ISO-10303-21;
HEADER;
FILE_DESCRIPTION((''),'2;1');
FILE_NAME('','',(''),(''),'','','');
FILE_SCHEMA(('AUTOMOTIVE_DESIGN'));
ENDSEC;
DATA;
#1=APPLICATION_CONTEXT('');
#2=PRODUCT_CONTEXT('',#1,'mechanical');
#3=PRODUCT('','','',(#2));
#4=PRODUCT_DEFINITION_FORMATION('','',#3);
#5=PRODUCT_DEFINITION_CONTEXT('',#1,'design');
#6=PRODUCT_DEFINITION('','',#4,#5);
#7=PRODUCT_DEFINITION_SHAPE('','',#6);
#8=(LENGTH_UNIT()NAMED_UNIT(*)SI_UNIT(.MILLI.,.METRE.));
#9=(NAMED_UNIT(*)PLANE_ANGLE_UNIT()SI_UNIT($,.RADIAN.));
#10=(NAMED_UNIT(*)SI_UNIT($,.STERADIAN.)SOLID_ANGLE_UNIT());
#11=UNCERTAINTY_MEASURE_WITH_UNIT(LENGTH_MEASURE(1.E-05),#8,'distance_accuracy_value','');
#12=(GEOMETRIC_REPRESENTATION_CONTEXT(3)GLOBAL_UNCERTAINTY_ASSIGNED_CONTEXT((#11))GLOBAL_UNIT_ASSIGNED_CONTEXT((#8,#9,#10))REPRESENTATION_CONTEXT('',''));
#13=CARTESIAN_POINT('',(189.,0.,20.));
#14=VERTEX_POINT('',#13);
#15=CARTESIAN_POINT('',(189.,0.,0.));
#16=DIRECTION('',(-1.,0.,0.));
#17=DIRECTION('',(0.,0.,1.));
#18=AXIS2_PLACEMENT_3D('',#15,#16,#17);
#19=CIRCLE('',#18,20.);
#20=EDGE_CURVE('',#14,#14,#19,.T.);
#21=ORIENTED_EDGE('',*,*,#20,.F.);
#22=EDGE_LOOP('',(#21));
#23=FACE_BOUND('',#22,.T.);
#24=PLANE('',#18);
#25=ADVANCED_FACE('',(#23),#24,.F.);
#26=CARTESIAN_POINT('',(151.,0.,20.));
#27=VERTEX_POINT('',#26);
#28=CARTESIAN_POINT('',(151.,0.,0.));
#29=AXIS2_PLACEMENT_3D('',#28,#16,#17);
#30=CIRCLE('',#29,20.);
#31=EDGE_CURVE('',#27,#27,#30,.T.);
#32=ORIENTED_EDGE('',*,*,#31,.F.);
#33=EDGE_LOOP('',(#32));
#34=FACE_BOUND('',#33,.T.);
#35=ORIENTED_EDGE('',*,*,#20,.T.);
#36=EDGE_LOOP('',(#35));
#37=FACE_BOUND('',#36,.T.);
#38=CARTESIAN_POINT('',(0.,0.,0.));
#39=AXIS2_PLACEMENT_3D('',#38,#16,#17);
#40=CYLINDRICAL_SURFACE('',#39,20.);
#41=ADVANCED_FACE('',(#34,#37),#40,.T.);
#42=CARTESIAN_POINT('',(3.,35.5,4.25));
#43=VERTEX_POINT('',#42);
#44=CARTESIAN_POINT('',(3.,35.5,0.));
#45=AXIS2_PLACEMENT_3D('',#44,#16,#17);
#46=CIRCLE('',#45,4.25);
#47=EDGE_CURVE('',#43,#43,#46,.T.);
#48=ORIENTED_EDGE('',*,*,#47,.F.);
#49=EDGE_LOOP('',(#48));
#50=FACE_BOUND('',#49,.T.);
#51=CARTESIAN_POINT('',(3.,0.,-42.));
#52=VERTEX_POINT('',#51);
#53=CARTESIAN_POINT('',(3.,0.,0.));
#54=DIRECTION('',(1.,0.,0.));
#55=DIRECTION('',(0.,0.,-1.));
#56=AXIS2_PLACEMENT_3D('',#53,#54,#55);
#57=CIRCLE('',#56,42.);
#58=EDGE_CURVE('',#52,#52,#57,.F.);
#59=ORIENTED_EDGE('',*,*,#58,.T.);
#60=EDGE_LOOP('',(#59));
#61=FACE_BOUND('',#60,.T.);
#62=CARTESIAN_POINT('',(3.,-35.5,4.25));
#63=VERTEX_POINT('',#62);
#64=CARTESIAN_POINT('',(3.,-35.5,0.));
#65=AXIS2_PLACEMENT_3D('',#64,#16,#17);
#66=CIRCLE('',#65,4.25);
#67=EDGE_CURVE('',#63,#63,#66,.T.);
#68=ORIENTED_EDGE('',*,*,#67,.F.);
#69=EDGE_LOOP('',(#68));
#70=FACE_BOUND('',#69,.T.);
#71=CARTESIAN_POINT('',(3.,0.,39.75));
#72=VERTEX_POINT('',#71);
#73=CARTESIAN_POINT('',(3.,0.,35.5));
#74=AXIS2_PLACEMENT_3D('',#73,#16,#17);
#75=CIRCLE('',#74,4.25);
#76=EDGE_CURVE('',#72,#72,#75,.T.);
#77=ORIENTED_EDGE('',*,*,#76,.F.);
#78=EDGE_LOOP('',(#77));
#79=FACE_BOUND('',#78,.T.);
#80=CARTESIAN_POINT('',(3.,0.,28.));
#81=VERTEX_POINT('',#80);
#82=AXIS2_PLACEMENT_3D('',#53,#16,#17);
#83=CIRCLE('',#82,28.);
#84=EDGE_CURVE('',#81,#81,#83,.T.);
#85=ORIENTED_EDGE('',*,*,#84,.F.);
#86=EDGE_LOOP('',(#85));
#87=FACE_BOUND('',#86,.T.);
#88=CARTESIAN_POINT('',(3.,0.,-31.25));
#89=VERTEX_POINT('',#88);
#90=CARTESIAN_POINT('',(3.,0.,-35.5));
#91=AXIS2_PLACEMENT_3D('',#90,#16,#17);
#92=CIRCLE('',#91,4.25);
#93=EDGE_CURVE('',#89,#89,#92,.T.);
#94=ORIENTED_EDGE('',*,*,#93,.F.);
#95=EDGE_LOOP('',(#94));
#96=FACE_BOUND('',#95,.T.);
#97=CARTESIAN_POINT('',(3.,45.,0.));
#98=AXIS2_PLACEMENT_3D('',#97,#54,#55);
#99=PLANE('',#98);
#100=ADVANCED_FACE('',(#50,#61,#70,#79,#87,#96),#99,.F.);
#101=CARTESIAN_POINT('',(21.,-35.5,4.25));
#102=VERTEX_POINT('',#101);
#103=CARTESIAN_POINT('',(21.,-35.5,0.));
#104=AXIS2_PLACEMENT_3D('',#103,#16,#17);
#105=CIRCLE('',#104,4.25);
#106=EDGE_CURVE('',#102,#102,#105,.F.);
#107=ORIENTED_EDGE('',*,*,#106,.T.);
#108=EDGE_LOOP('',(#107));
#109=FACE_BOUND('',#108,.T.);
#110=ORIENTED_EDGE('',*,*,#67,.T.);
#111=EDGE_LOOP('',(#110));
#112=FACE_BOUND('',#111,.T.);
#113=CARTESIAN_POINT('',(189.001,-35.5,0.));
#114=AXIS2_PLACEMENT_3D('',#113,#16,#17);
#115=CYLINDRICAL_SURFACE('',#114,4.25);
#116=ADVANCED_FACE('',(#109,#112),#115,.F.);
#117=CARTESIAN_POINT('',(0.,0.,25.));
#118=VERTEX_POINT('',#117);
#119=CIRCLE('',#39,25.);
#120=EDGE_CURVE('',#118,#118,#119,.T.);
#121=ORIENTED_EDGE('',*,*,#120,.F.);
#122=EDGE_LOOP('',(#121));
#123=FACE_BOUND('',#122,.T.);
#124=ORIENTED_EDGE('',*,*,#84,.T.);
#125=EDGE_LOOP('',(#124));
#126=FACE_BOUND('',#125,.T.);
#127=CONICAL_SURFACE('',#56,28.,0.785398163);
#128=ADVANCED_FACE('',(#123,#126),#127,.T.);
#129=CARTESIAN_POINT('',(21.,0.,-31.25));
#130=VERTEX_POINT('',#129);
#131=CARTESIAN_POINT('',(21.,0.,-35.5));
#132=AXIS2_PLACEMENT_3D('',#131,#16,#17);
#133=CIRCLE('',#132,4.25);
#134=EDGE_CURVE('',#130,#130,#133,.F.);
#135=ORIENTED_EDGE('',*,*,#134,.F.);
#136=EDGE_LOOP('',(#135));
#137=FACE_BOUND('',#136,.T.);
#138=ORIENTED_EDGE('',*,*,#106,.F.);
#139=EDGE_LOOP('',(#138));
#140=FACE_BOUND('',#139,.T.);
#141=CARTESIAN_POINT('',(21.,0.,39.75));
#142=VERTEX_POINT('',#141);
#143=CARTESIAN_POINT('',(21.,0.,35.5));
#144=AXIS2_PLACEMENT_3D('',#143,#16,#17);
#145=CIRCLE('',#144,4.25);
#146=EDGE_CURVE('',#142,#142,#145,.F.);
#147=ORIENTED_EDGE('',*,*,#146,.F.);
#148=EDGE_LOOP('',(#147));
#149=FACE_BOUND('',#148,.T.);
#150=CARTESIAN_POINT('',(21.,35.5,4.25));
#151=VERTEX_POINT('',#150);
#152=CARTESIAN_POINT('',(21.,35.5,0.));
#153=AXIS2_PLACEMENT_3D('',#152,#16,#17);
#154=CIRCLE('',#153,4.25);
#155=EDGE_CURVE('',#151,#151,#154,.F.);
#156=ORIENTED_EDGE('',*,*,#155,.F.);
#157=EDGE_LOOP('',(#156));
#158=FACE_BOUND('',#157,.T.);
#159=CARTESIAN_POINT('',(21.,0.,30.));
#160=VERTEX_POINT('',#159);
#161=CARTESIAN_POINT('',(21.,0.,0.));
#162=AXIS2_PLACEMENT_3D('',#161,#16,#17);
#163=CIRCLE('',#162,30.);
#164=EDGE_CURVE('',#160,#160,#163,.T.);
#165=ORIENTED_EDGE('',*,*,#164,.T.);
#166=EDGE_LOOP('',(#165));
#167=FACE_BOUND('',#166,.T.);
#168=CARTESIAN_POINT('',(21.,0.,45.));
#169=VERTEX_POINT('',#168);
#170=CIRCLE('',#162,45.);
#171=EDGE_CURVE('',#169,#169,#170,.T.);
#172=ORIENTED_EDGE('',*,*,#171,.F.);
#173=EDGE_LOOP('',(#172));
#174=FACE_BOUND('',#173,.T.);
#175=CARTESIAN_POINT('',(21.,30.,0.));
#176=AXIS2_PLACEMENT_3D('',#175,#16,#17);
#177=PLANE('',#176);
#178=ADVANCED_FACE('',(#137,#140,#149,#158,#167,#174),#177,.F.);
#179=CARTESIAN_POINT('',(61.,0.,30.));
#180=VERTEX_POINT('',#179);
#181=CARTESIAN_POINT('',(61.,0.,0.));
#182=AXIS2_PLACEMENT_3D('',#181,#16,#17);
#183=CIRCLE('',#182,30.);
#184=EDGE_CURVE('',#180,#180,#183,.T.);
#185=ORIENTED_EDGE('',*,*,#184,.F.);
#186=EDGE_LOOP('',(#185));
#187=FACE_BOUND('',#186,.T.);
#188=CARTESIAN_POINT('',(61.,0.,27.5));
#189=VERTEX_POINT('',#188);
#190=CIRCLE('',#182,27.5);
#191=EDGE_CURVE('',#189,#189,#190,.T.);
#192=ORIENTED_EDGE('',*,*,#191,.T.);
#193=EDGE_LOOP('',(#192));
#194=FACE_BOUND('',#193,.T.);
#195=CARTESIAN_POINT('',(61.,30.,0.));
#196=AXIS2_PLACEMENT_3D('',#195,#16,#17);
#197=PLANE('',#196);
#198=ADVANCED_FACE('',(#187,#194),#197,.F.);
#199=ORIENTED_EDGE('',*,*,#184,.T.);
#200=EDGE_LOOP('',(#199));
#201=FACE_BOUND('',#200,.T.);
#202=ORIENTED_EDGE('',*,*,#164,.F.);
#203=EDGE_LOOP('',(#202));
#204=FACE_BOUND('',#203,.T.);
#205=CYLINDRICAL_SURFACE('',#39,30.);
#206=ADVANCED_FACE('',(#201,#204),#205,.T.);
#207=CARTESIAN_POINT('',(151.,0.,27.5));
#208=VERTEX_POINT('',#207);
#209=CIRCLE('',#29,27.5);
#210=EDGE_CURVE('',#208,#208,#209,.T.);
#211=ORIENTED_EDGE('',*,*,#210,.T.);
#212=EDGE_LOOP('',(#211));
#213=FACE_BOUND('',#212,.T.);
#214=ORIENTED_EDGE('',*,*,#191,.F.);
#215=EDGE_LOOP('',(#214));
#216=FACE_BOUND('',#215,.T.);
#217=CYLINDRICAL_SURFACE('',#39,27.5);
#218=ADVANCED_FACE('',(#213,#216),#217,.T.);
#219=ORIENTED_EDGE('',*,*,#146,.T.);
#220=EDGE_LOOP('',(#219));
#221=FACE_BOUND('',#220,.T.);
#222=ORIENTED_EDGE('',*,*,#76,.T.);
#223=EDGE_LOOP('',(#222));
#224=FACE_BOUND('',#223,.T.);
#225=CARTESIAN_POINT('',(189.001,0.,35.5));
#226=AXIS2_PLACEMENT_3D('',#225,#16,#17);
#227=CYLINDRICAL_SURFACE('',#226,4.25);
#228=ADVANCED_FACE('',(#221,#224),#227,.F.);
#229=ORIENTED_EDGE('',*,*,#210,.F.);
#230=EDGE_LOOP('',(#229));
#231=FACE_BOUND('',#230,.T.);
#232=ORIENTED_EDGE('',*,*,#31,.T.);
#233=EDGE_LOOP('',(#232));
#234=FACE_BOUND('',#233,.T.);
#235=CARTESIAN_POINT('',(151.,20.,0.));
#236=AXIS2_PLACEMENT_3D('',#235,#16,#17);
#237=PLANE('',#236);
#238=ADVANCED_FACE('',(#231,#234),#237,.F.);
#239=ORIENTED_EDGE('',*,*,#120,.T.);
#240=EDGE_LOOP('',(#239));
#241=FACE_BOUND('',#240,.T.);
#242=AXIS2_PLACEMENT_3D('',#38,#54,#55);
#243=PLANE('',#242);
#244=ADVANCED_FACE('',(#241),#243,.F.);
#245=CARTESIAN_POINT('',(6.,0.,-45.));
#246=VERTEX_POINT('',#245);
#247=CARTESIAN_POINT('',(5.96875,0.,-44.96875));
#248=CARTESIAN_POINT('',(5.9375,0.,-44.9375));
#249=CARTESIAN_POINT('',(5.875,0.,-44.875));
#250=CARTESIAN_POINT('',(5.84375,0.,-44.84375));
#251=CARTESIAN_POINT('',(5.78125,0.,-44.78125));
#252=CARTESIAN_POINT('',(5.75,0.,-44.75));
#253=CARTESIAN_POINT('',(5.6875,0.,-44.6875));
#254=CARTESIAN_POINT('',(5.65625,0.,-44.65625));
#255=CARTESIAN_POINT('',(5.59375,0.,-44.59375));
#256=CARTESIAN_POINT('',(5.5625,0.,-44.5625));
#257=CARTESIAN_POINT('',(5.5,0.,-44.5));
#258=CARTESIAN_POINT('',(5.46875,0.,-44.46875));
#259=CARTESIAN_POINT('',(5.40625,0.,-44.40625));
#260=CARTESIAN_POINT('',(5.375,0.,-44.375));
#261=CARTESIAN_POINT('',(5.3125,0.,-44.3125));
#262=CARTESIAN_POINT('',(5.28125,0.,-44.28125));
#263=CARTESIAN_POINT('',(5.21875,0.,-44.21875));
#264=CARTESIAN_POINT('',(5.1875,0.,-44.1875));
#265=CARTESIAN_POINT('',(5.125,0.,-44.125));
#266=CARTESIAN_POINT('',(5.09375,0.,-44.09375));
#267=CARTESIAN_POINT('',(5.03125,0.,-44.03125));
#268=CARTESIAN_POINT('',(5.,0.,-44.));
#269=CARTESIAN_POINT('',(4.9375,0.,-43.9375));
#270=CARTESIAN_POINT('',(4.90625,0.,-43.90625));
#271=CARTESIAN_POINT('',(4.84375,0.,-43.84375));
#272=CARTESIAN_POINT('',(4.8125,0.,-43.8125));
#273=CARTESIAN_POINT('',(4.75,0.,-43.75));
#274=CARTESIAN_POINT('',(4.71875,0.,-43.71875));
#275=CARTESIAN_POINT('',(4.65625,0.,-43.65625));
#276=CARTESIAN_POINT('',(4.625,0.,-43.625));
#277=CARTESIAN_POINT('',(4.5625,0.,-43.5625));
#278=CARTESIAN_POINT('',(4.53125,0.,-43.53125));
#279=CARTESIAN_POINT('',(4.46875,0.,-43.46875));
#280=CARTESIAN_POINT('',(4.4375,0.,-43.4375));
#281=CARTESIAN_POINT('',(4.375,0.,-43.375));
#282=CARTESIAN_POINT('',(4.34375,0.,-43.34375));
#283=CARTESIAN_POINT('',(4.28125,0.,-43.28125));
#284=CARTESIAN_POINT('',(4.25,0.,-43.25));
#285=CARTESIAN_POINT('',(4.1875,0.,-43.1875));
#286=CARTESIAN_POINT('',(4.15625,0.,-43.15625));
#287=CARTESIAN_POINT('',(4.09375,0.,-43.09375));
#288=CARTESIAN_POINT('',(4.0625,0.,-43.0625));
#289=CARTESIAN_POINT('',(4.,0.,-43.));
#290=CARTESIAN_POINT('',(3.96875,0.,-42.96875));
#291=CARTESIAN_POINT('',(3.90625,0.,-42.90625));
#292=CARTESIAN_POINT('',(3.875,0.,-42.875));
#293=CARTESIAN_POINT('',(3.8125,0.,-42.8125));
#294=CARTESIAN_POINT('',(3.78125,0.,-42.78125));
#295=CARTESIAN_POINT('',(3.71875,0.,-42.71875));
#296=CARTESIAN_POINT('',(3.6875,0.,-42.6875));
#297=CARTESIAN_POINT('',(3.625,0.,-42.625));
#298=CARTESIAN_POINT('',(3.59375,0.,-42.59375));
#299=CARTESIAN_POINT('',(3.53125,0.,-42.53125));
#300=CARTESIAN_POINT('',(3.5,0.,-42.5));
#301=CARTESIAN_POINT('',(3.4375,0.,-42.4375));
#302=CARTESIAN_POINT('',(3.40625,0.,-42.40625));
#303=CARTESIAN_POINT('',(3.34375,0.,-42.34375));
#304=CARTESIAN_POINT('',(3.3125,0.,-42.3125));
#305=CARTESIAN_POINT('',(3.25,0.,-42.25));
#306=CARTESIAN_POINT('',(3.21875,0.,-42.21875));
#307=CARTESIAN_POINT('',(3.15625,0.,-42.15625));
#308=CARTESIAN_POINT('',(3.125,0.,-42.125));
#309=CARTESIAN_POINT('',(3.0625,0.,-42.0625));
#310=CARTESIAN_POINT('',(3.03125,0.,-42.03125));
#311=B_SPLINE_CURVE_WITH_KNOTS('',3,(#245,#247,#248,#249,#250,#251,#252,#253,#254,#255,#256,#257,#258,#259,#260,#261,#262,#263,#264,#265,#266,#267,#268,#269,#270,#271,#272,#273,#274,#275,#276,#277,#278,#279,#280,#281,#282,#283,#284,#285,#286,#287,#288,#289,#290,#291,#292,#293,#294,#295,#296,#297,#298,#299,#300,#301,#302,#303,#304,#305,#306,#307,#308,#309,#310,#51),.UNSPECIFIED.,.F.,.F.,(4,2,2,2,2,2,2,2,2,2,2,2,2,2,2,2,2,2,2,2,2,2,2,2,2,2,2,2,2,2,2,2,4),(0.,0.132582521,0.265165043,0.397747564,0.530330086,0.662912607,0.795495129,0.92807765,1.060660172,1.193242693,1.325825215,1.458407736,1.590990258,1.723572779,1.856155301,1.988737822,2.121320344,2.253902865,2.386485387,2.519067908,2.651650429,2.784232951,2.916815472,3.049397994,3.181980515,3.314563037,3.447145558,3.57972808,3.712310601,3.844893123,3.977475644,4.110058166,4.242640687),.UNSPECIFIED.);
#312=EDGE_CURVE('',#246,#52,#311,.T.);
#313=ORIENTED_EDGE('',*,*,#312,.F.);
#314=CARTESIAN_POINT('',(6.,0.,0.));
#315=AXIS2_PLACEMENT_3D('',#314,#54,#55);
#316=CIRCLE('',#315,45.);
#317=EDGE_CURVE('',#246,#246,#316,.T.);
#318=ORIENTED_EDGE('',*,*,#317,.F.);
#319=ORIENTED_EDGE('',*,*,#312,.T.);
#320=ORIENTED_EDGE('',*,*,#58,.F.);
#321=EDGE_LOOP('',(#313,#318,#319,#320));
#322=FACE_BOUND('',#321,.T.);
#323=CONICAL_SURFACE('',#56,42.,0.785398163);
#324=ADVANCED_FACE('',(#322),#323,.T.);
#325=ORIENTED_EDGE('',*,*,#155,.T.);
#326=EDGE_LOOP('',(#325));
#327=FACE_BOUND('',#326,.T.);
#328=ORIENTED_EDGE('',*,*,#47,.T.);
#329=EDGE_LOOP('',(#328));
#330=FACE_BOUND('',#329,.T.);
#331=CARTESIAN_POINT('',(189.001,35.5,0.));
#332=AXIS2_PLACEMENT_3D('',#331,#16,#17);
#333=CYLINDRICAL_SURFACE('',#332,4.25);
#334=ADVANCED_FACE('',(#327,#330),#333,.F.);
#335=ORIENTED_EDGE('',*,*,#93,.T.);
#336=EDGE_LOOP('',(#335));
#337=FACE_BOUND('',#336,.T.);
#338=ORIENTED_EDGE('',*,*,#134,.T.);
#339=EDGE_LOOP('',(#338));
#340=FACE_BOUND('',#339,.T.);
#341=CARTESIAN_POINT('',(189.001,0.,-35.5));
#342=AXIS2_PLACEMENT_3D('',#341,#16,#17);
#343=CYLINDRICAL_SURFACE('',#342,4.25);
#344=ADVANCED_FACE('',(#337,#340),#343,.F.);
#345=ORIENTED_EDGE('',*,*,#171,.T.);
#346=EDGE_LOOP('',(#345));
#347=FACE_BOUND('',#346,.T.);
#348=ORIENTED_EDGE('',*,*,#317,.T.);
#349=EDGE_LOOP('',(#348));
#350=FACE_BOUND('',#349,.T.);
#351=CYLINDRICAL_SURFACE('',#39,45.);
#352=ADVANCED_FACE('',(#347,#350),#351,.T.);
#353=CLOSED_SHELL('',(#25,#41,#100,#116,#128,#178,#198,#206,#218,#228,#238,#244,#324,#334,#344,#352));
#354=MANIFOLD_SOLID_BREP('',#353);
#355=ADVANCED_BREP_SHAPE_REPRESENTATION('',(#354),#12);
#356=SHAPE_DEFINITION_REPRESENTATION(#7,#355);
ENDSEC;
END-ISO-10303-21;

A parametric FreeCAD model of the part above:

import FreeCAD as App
import Part
import Sketcher
from FreeCAD import Vector
Q = App.Units.Quantity


def edges_at(feature, points):
    """Names of the edges that pass closest to the given points."""
    edges = feature.Shape.Edges
    near = lambda p: min(range(len(edges)), key=lambda i: edges[i].distToShape(Part.Vertex(*p))[0])
    return sorted({f"Edge{near(p) + 1}" for p in points})

doc = App.newDocument("Part")
body = doc.addObject("PartDesign::Body", "Body")

# Sketch on XY plane
sketch1 = doc.addObject("Sketcher::SketchObject", "Sketch")
body.addObject(sketch1)
sketch1.AttachmentSupport = (doc.XY_Plane, [""])
sketch1.MapMode = "FlatFace"
sketch1.addGeometry(Part.LineSegment(Vector(189, 0, 0), Vector(189, 20, 0)), False)
sketch1.addGeometry(Part.LineSegment(Vector(189, 20, 0), Vector(151, 20, 0)), False)
sketch1.addGeometry(Part.LineSegment(Vector(151, 20, 0), Vector(151, 27.5, 0)), False)
sketch1.addGeometry(Part.LineSegment(Vector(151, 27.5, 0), Vector(61, 27.5, 0)), False)
sketch1.addGeometry(Part.LineSegment(Vector(61, 27.5, 0), Vector(61, 30, 0)), False)
sketch1.addGeometry(Part.LineSegment(Vector(61, 30, 0), Vector(21, 30, 0)), False)
sketch1.addGeometry(Part.LineSegment(Vector(21, 30, 0), Vector(21, 45, 0)), False)
sketch1.addGeometry(Part.LineSegment(Vector(21, 45, 0), Vector(3, 45, 0)), False)
sketch1.addGeometry(Part.LineSegment(Vector(3, 45, 0), Vector(3, 28, 0)), False)
sketch1.addGeometry(Part.LineSegment(Vector(3, 28, 0), Vector(0, 25, 0)), False)
sketch1.addGeometry(Part.LineSegment(Vector(0, 25, 0), Vector(0, 0, 0)), False)
sketch1.addGeometry(Part.LineSegment(Vector(0, 0, 0), Vector(189, 0, 0)), False)
sketch1.addConstraint(Sketcher.Constraint("Coincident", 0, 2, 1, 1))
sketch1.addConstraint(Sketcher.Constraint("Coincident", 1, 2, 2, 1))
sketch1.addConstraint(Sketcher.Constraint("Coincident", 2, 2, 3, 1))
sketch1.addConstraint(Sketcher.Constraint("Coincident", 3, 2, 4, 1))
sketch1.addConstraint(Sketcher.Constraint("Coincident", 4, 2, 5, 1))
sketch1.addConstraint(Sketcher.Constraint("Coincident", 5, 2, 6, 1))
sketch1.addConstraint(Sketcher.Constraint("Coincident", 6, 2, 7, 1))
sketch1.addConstraint(Sketcher.Constraint("Coincident", 7, 2, 8, 1))
sketch1.addConstraint(Sketcher.Constraint("Coincident", 8, 2, 9, 1))
sketch1.addConstraint(Sketcher.Constraint("Coincident", 9, 2, 10, 1))
sketch1.addConstraint(Sketcher.Constraint("Coincident", 10, 2, 11, 1))
sketch1.addConstraint(Sketcher.Constraint("Coincident", 11, 2, 0, 1))
sketch1.addConstraint(Sketcher.Constraint("Vertical", 0))
sketch1.addConstraint(Sketcher.Constraint("Horizontal", 1))
sketch1.addConstraint(Sketcher.Constraint("Vertical", 2))
sketch1.addConstraint(Sketcher.Constraint("Horizontal", 3))
sketch1.addConstraint(Sketcher.Constraint("Vertical", 4))
sketch1.addConstraint(Sketcher.Constraint("Horizontal", 5))
sketch1.addConstraint(Sketcher.Constraint("Vertical", 6))
sketch1.addConstraint(Sketcher.Constraint("Horizontal", 7))
sketch1.addConstraint(Sketcher.Constraint("Vertical", 8))
sketch1.addConstraint(Sketcher.Constraint("Vertical", 10))
sketch1.addConstraint(Sketcher.Constraint("Horizontal", 11))
sketch1.addConstraint(Sketcher.Constraint("Coincident", 10, 2, -1, 1))
sketch1.addConstraint(Sketcher.Constraint("DistanceX", 1, 2, 1, 1, Q("38 mm")))
sketch1.addConstraint(Sketcher.Constraint("DistanceX", 3, 2, 3, 1, Q("90 mm")))
sketch1.addConstraint(Sketcher.Constraint("DistanceX", 5, 2, 5, 1, Q("40 mm")))
sketch1.addConstraint(Sketcher.Constraint("DistanceX", 7, 2, 7, 1, Q("18 mm")))
sketch1.addConstraint(Sketcher.Constraint("DistanceX", 11, 1, 11, 2, Q("189 mm")))
sketch1.addConstraint(Sketcher.Constraint("DistanceY", 0, 1, 0, 2, Q("20 mm")))
sketch1.addConstraint(Sketcher.Constraint("DistanceY", 6, 1, 6, 2, Q("15 mm")))
sketch1.addConstraint(Sketcher.Constraint("DistanceY", 8, 2, 8, 1, Q("17 mm")))
sketch1.addConstraint(Sketcher.Constraint("DistanceY", 10, 2, 10, 1, Q("25 mm")))
sketch1.addConstraint(Sketcher.Constraint("Angle", 9, Q("-135 deg")))
sketch1.addConstraint(Sketcher.Constraint("DistanceY", 2, 1, 2, 2, Q("7.5 mm")))
revolution = doc.addObject("PartDesign::Revolution", "Revolution")
body.addObject(revolution)
revolution.Profile = sketch1
revolution.ReferenceAxis = (sketch1, ["H_Axis"])
revolution.Angle = 360
doc.recompute()

chamfer = doc.addObject("PartDesign::Chamfer", "Chamfer")
body.addObject(chamfer)
chamfer.Base = (revolution, edges_at(revolution, [(3, 0, -45)]))
chamfer.Size = 3

# Sketch on YZ plane
sketch2 = doc.addObject("Sketcher::SketchObject", "Sketch001")
body.addObject(sketch2)
sketch2.AttachmentSupport = (doc.YZ_Plane, [""])
sketch2.MapMode = "FlatFace"
sketch2.AttachmentOffset = App.Placement(Vector(0, 0, 3), App.Rotation())
sketch2.addGeometry(Part.Circle(Vector(0, 35.5, 0), Vector(0, 0, 1), 4.25), False)
sketch2.addConstraint(Sketcher.Constraint("PointOnObject", 0, 3, -2))
sketch2.addConstraint(Sketcher.Constraint("Diameter", 0, Q("8.5 mm")))
sketch2.addConstraint(Sketcher.Constraint("DistanceY", -1, 1, 0, 3, Q("35.5 mm")))
pocket1 = doc.addObject("PartDesign::Pocket", "Pocket")
body.addObject(pocket1)
pocket1.Profile = sketch2
pocket1.Type = "UpToFirst"
pocket1.Reversed = True

# Sketch on YZ plane
sketch3 = doc.addObject("Sketcher::SketchObject", "Sketch002")
body.addObject(sketch3)
sketch3.AttachmentSupport = (doc.YZ_Plane, [""])
sketch3.MapMode = "FlatFace"
sketch3.AttachmentOffset = App.Placement(Vector(0, 0, 3), App.Rotation())
sketch3.addGeometry(Part.Circle(Vector(-35.5, 0, 0), Vector(0, 0, 1), 4.25), False)
sketch3.addConstraint(Sketcher.Constraint("PointOnObject", 0, 3, -1))
sketch3.addConstraint(Sketcher.Constraint("Diameter", 0, Q("8.5 mm")))
sketch3.addConstraint(Sketcher.Constraint("DistanceX", 0, 3, -1, 1, Q("35.5 mm")))
pocket2 = doc.addObject("PartDesign::Pocket", "Pocket001")
body.addObject(pocket2)
pocket2.Profile = sketch3
pocket2.Type = "UpToFirst"
pocket2.Reversed = True

# Sketch on YZ plane
sketch4 = doc.addObject("Sketcher::SketchObject", "Sketch003")
body.addObject(sketch4)
sketch4.AttachmentSupport = (doc.YZ_Plane, [""])
sketch4.MapMode = "FlatFace"
sketch4.AttachmentOffset = App.Placement(Vector(0, 0, 3), App.Rotation())
sketch4.addGeometry(Part.Circle(Vector(0, -35.5, 0), Vector(0, 0, 1), 4.25), False)
sketch4.addConstraint(Sketcher.Constraint("PointOnObject", 0, 3, -2))
sketch4.addConstraint(Sketcher.Constraint("Diameter", 0, Q("8.5 mm")))
sketch4.addConstraint(Sketcher.Constraint("DistanceY", 0, 3, -1, 1, Q("35.5 mm")))
pocket3 = doc.addObject("PartDesign::Pocket", "Pocket002")
body.addObject(pocket3)
pocket3.Profile = sketch4
pocket3.Type = "UpToFirst"
pocket3.Reversed = True

# Sketch on YZ plane
sketch5 = doc.addObject("Sketcher::SketchObject", "Sketch004")
body.addObject(sketch5)
sketch5.AttachmentSupport = (doc.YZ_Plane, [""])
sketch5.MapMode = "FlatFace"
sketch5.AttachmentOffset = App.Placement(Vector(0, 0, 3), App.Rotation())
sketch5.addGeometry(Part.Circle(Vector(35.5, 0, 0), Vector(0, 0, 1), 4.25), False)
sketch5.addConstraint(Sketcher.Constraint("PointOnObject", 0, 3, -1))
sketch5.addConstraint(Sketcher.Constraint("Diameter", 0, Q("8.5 mm")))
sketch5.addConstraint(Sketcher.Constraint("DistanceX", -1, 1, 0, 3, Q("35.5 mm")))
pocket4 = doc.addObject("PartDesign::Pocket", "Pocket003")
body.addObject(pocket4)
pocket4.Profile = sketch5
pocket4.Type = "UpToFirst"
pocket4.Reversed = True

doc.recompute()
